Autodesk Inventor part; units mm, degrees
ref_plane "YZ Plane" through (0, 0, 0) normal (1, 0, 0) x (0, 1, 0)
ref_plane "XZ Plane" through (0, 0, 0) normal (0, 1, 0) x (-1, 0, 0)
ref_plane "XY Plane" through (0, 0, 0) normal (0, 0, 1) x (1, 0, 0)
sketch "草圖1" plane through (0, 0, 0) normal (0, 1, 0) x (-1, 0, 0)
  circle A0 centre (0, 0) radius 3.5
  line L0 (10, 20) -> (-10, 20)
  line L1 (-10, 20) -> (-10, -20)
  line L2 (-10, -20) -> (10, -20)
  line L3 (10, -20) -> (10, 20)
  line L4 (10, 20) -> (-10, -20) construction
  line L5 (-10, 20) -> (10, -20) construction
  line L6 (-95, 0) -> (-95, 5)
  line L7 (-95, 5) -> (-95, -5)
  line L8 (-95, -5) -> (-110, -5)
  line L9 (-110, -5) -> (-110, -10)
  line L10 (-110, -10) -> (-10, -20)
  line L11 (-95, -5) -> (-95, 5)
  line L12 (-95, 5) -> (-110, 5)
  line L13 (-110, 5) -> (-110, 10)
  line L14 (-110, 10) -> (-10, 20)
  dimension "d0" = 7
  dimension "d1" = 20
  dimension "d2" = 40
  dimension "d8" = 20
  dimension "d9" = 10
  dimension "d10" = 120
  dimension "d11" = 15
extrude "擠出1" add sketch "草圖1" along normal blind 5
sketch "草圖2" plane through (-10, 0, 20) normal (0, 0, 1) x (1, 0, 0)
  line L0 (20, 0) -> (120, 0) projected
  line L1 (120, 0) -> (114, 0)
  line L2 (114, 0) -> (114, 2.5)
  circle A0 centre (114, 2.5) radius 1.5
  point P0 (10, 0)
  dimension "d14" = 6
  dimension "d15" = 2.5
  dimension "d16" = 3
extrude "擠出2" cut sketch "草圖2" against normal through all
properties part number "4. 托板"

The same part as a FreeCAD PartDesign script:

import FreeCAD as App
import Part
import Sketcher
from FreeCAD import Vector
Q = App.Units.Quantity

doc = App.newDocument("Part")
body = doc.addObject("PartDesign::Body", "Body")

sketch1 = body.newObject("Sketcher::SketchObject", "Sketch")
sketch1.AttachmentSupport = (doc.getObject("XZ_Plane"), [""])
sketch1.MapMode = "FlatFace"
sketch1.addGeometry(Part.LineSegment(Vector(-10, -20, 0), Vector(-10, 20, 0)), False)
sketch1.addGeometry(Part.LineSegment(Vector(-10, 20, 0), Vector(10, 20, 0)), False)
sketch1.addGeometry(Part.LineSegment(Vector(10, 20, 0), Vector(110, 10, 0)), False)
sketch1.addGeometry(Part.LineSegment(Vector(110, 10, 0), Vector(110, 5, 0)), False)
sketch1.addGeometry(Part.LineSegment(Vector(110, 5, 0), Vector(95, 5, 0)), False)
sketch1.addGeometry(Part.LineSegment(Vector(95, 5, 0), Vector(95, -5, 0)), False)
sketch1.addGeometry(Part.LineSegment(Vector(95, -5, 0), Vector(110, -5, 0)), False)
sketch1.addGeometry(Part.LineSegment(Vector(110, -5, 0), Vector(110, -10, 0)), False)
sketch1.addGeometry(Part.LineSegment(Vector(110, -10, 0), Vector(10, -20, 0)), False)
sketch1.addGeometry(Part.LineSegment(Vector(10, -20, 0), Vector(-10, -20, 0)), False)
sketch1.addGeometry(Part.Circle(Vector(0, 0, 0), Vector(0, 0, 1), 3.5), False)
sketch1.addConstraint(Sketcher.Constraint("Coincident", 0, 2, 1, 1))
sketch1.addConstraint(Sketcher.Constraint("Coincident", 1, 2, 2, 1))
sketch1.addConstraint(Sketcher.Constraint("Coincident", 2, 2, 3, 1))
sketch1.addConstraint(Sketcher.Constraint("Coincident", 3, 2, 4, 1))
sketch1.addConstraint(Sketcher.Constraint("Coincident", 4, 2, 5, 1))
sketch1.addConstraint(Sketcher.Constraint("Coincident", 5, 2, 6, 1))
sketch1.addConstraint(Sketcher.Constraint("Coincident", 6, 2, 7, 1))
sketch1.addConstraint(Sketcher.Constraint("Coincident", 7, 2, 8, 1))
sketch1.addConstraint(Sketcher.Constraint("Coincident", 8, 2, 9, 1))
sketch1.addConstraint(Sketcher.Constraint("Coincident", 9, 2, 0, 1))
sketch1.addConstraint(Sketcher.Constraint("Vertical", 0))
sketch1.addConstraint(Sketcher.Constraint("Horizontal", 1))
sketch1.addConstraint(Sketcher.Constraint("Vertical", 3))
sketch1.addConstraint(Sketcher.Constraint("Horizontal", 4))
sketch1.addConstraint(Sketcher.Constraint("Vertical", 5))
sketch1.addConstraint(Sketcher.Constraint("Horizontal", 6))
sketch1.addConstraint(Sketcher.Constraint("Vertical", 7))
sketch1.addConstraint(Sketcher.Constraint("Horizontal", 9))
sketch1.addConstraint(Sketcher.Constraint("Coincident", 10, 3, -1, 1))
sketch1.addConstraint(Sketcher.Constraint("Symmetric", 0, 2, 8, 2, -1, 1))
sketch1.addConstraint(Sketcher.Constraint("Symmetric", 3, 2, 6, 2, -1))
sketch1.addConstraint(Sketcher.Constraint("Vertical", 1, 2, 8, 2))
sketch1.addConstraint(Sketcher.Constraint("Equal", 3, 7))
sketch1.addConstraint(Sketcher.Constraint("Diameter", 10, Q("7 mm")))
sketch1.addConstraint(Sketcher.Constraint("DistanceX", 1, 1, 1, 2, Q("20 mm")))
sketch1.addConstraint(Sketcher.Constraint("DistanceX", 4, 2, 4, 1, Q("15 mm")))
sketch1.addConstraint(Sketcher.Constraint("DistanceY", 0, 1, 0, 2, Q("40 mm")))
sketch1.addConstraint(Sketcher.Constraint("DistanceY", 5, 2, 5, 1, Q("10 mm")))
sketch1.addConstraint(Sketcher.Constraint("DistanceY", -1, 1, 2, 2, Q("10 mm")))
sketch1.addConstraint(Sketcher.Constraint("DistanceX", 0, 2, 2, 2, Q("120 mm")))
pad1 = body.newObject("PartDesign::Pad", "Pad")
pad1.Profile = sketch1
pad1.Length = 5
pad1.Reversed = True

sketch2 = body.newObject("Sketcher::SketchObject", "Sketch001")
sketch2.AttachmentSupport = (doc.getObject("XY_Plane"), [""])
sketch2.MapMode = "FlatFace"
sketch2.AttachmentOffset = App.Placement(Vector(0, 0, 20), App.Rotation())
sketch2.addGeometry(Part.Circle(Vector(104, 2.5, 0), Vector(0, 0, 1), 1.5), False)
sketch2.addConstraint(Sketcher.Constraint("Diameter", 0, Q("3 mm")))
sketch2.addConstraint(Sketcher.Constraint("DistanceY", -1, 1, 0, 3, Q("2.5 mm")))
sketch2.addConstraint(Sketcher.Constraint("DistanceX", -1, 1, 0, 3, Q("104 mm")))
pocket1 = body.newObject("PartDesign::Pocket", "Pocket")
pocket1.Profile = sketch2
pocket1.Type = "ThroughAll"

doc.recompute()
